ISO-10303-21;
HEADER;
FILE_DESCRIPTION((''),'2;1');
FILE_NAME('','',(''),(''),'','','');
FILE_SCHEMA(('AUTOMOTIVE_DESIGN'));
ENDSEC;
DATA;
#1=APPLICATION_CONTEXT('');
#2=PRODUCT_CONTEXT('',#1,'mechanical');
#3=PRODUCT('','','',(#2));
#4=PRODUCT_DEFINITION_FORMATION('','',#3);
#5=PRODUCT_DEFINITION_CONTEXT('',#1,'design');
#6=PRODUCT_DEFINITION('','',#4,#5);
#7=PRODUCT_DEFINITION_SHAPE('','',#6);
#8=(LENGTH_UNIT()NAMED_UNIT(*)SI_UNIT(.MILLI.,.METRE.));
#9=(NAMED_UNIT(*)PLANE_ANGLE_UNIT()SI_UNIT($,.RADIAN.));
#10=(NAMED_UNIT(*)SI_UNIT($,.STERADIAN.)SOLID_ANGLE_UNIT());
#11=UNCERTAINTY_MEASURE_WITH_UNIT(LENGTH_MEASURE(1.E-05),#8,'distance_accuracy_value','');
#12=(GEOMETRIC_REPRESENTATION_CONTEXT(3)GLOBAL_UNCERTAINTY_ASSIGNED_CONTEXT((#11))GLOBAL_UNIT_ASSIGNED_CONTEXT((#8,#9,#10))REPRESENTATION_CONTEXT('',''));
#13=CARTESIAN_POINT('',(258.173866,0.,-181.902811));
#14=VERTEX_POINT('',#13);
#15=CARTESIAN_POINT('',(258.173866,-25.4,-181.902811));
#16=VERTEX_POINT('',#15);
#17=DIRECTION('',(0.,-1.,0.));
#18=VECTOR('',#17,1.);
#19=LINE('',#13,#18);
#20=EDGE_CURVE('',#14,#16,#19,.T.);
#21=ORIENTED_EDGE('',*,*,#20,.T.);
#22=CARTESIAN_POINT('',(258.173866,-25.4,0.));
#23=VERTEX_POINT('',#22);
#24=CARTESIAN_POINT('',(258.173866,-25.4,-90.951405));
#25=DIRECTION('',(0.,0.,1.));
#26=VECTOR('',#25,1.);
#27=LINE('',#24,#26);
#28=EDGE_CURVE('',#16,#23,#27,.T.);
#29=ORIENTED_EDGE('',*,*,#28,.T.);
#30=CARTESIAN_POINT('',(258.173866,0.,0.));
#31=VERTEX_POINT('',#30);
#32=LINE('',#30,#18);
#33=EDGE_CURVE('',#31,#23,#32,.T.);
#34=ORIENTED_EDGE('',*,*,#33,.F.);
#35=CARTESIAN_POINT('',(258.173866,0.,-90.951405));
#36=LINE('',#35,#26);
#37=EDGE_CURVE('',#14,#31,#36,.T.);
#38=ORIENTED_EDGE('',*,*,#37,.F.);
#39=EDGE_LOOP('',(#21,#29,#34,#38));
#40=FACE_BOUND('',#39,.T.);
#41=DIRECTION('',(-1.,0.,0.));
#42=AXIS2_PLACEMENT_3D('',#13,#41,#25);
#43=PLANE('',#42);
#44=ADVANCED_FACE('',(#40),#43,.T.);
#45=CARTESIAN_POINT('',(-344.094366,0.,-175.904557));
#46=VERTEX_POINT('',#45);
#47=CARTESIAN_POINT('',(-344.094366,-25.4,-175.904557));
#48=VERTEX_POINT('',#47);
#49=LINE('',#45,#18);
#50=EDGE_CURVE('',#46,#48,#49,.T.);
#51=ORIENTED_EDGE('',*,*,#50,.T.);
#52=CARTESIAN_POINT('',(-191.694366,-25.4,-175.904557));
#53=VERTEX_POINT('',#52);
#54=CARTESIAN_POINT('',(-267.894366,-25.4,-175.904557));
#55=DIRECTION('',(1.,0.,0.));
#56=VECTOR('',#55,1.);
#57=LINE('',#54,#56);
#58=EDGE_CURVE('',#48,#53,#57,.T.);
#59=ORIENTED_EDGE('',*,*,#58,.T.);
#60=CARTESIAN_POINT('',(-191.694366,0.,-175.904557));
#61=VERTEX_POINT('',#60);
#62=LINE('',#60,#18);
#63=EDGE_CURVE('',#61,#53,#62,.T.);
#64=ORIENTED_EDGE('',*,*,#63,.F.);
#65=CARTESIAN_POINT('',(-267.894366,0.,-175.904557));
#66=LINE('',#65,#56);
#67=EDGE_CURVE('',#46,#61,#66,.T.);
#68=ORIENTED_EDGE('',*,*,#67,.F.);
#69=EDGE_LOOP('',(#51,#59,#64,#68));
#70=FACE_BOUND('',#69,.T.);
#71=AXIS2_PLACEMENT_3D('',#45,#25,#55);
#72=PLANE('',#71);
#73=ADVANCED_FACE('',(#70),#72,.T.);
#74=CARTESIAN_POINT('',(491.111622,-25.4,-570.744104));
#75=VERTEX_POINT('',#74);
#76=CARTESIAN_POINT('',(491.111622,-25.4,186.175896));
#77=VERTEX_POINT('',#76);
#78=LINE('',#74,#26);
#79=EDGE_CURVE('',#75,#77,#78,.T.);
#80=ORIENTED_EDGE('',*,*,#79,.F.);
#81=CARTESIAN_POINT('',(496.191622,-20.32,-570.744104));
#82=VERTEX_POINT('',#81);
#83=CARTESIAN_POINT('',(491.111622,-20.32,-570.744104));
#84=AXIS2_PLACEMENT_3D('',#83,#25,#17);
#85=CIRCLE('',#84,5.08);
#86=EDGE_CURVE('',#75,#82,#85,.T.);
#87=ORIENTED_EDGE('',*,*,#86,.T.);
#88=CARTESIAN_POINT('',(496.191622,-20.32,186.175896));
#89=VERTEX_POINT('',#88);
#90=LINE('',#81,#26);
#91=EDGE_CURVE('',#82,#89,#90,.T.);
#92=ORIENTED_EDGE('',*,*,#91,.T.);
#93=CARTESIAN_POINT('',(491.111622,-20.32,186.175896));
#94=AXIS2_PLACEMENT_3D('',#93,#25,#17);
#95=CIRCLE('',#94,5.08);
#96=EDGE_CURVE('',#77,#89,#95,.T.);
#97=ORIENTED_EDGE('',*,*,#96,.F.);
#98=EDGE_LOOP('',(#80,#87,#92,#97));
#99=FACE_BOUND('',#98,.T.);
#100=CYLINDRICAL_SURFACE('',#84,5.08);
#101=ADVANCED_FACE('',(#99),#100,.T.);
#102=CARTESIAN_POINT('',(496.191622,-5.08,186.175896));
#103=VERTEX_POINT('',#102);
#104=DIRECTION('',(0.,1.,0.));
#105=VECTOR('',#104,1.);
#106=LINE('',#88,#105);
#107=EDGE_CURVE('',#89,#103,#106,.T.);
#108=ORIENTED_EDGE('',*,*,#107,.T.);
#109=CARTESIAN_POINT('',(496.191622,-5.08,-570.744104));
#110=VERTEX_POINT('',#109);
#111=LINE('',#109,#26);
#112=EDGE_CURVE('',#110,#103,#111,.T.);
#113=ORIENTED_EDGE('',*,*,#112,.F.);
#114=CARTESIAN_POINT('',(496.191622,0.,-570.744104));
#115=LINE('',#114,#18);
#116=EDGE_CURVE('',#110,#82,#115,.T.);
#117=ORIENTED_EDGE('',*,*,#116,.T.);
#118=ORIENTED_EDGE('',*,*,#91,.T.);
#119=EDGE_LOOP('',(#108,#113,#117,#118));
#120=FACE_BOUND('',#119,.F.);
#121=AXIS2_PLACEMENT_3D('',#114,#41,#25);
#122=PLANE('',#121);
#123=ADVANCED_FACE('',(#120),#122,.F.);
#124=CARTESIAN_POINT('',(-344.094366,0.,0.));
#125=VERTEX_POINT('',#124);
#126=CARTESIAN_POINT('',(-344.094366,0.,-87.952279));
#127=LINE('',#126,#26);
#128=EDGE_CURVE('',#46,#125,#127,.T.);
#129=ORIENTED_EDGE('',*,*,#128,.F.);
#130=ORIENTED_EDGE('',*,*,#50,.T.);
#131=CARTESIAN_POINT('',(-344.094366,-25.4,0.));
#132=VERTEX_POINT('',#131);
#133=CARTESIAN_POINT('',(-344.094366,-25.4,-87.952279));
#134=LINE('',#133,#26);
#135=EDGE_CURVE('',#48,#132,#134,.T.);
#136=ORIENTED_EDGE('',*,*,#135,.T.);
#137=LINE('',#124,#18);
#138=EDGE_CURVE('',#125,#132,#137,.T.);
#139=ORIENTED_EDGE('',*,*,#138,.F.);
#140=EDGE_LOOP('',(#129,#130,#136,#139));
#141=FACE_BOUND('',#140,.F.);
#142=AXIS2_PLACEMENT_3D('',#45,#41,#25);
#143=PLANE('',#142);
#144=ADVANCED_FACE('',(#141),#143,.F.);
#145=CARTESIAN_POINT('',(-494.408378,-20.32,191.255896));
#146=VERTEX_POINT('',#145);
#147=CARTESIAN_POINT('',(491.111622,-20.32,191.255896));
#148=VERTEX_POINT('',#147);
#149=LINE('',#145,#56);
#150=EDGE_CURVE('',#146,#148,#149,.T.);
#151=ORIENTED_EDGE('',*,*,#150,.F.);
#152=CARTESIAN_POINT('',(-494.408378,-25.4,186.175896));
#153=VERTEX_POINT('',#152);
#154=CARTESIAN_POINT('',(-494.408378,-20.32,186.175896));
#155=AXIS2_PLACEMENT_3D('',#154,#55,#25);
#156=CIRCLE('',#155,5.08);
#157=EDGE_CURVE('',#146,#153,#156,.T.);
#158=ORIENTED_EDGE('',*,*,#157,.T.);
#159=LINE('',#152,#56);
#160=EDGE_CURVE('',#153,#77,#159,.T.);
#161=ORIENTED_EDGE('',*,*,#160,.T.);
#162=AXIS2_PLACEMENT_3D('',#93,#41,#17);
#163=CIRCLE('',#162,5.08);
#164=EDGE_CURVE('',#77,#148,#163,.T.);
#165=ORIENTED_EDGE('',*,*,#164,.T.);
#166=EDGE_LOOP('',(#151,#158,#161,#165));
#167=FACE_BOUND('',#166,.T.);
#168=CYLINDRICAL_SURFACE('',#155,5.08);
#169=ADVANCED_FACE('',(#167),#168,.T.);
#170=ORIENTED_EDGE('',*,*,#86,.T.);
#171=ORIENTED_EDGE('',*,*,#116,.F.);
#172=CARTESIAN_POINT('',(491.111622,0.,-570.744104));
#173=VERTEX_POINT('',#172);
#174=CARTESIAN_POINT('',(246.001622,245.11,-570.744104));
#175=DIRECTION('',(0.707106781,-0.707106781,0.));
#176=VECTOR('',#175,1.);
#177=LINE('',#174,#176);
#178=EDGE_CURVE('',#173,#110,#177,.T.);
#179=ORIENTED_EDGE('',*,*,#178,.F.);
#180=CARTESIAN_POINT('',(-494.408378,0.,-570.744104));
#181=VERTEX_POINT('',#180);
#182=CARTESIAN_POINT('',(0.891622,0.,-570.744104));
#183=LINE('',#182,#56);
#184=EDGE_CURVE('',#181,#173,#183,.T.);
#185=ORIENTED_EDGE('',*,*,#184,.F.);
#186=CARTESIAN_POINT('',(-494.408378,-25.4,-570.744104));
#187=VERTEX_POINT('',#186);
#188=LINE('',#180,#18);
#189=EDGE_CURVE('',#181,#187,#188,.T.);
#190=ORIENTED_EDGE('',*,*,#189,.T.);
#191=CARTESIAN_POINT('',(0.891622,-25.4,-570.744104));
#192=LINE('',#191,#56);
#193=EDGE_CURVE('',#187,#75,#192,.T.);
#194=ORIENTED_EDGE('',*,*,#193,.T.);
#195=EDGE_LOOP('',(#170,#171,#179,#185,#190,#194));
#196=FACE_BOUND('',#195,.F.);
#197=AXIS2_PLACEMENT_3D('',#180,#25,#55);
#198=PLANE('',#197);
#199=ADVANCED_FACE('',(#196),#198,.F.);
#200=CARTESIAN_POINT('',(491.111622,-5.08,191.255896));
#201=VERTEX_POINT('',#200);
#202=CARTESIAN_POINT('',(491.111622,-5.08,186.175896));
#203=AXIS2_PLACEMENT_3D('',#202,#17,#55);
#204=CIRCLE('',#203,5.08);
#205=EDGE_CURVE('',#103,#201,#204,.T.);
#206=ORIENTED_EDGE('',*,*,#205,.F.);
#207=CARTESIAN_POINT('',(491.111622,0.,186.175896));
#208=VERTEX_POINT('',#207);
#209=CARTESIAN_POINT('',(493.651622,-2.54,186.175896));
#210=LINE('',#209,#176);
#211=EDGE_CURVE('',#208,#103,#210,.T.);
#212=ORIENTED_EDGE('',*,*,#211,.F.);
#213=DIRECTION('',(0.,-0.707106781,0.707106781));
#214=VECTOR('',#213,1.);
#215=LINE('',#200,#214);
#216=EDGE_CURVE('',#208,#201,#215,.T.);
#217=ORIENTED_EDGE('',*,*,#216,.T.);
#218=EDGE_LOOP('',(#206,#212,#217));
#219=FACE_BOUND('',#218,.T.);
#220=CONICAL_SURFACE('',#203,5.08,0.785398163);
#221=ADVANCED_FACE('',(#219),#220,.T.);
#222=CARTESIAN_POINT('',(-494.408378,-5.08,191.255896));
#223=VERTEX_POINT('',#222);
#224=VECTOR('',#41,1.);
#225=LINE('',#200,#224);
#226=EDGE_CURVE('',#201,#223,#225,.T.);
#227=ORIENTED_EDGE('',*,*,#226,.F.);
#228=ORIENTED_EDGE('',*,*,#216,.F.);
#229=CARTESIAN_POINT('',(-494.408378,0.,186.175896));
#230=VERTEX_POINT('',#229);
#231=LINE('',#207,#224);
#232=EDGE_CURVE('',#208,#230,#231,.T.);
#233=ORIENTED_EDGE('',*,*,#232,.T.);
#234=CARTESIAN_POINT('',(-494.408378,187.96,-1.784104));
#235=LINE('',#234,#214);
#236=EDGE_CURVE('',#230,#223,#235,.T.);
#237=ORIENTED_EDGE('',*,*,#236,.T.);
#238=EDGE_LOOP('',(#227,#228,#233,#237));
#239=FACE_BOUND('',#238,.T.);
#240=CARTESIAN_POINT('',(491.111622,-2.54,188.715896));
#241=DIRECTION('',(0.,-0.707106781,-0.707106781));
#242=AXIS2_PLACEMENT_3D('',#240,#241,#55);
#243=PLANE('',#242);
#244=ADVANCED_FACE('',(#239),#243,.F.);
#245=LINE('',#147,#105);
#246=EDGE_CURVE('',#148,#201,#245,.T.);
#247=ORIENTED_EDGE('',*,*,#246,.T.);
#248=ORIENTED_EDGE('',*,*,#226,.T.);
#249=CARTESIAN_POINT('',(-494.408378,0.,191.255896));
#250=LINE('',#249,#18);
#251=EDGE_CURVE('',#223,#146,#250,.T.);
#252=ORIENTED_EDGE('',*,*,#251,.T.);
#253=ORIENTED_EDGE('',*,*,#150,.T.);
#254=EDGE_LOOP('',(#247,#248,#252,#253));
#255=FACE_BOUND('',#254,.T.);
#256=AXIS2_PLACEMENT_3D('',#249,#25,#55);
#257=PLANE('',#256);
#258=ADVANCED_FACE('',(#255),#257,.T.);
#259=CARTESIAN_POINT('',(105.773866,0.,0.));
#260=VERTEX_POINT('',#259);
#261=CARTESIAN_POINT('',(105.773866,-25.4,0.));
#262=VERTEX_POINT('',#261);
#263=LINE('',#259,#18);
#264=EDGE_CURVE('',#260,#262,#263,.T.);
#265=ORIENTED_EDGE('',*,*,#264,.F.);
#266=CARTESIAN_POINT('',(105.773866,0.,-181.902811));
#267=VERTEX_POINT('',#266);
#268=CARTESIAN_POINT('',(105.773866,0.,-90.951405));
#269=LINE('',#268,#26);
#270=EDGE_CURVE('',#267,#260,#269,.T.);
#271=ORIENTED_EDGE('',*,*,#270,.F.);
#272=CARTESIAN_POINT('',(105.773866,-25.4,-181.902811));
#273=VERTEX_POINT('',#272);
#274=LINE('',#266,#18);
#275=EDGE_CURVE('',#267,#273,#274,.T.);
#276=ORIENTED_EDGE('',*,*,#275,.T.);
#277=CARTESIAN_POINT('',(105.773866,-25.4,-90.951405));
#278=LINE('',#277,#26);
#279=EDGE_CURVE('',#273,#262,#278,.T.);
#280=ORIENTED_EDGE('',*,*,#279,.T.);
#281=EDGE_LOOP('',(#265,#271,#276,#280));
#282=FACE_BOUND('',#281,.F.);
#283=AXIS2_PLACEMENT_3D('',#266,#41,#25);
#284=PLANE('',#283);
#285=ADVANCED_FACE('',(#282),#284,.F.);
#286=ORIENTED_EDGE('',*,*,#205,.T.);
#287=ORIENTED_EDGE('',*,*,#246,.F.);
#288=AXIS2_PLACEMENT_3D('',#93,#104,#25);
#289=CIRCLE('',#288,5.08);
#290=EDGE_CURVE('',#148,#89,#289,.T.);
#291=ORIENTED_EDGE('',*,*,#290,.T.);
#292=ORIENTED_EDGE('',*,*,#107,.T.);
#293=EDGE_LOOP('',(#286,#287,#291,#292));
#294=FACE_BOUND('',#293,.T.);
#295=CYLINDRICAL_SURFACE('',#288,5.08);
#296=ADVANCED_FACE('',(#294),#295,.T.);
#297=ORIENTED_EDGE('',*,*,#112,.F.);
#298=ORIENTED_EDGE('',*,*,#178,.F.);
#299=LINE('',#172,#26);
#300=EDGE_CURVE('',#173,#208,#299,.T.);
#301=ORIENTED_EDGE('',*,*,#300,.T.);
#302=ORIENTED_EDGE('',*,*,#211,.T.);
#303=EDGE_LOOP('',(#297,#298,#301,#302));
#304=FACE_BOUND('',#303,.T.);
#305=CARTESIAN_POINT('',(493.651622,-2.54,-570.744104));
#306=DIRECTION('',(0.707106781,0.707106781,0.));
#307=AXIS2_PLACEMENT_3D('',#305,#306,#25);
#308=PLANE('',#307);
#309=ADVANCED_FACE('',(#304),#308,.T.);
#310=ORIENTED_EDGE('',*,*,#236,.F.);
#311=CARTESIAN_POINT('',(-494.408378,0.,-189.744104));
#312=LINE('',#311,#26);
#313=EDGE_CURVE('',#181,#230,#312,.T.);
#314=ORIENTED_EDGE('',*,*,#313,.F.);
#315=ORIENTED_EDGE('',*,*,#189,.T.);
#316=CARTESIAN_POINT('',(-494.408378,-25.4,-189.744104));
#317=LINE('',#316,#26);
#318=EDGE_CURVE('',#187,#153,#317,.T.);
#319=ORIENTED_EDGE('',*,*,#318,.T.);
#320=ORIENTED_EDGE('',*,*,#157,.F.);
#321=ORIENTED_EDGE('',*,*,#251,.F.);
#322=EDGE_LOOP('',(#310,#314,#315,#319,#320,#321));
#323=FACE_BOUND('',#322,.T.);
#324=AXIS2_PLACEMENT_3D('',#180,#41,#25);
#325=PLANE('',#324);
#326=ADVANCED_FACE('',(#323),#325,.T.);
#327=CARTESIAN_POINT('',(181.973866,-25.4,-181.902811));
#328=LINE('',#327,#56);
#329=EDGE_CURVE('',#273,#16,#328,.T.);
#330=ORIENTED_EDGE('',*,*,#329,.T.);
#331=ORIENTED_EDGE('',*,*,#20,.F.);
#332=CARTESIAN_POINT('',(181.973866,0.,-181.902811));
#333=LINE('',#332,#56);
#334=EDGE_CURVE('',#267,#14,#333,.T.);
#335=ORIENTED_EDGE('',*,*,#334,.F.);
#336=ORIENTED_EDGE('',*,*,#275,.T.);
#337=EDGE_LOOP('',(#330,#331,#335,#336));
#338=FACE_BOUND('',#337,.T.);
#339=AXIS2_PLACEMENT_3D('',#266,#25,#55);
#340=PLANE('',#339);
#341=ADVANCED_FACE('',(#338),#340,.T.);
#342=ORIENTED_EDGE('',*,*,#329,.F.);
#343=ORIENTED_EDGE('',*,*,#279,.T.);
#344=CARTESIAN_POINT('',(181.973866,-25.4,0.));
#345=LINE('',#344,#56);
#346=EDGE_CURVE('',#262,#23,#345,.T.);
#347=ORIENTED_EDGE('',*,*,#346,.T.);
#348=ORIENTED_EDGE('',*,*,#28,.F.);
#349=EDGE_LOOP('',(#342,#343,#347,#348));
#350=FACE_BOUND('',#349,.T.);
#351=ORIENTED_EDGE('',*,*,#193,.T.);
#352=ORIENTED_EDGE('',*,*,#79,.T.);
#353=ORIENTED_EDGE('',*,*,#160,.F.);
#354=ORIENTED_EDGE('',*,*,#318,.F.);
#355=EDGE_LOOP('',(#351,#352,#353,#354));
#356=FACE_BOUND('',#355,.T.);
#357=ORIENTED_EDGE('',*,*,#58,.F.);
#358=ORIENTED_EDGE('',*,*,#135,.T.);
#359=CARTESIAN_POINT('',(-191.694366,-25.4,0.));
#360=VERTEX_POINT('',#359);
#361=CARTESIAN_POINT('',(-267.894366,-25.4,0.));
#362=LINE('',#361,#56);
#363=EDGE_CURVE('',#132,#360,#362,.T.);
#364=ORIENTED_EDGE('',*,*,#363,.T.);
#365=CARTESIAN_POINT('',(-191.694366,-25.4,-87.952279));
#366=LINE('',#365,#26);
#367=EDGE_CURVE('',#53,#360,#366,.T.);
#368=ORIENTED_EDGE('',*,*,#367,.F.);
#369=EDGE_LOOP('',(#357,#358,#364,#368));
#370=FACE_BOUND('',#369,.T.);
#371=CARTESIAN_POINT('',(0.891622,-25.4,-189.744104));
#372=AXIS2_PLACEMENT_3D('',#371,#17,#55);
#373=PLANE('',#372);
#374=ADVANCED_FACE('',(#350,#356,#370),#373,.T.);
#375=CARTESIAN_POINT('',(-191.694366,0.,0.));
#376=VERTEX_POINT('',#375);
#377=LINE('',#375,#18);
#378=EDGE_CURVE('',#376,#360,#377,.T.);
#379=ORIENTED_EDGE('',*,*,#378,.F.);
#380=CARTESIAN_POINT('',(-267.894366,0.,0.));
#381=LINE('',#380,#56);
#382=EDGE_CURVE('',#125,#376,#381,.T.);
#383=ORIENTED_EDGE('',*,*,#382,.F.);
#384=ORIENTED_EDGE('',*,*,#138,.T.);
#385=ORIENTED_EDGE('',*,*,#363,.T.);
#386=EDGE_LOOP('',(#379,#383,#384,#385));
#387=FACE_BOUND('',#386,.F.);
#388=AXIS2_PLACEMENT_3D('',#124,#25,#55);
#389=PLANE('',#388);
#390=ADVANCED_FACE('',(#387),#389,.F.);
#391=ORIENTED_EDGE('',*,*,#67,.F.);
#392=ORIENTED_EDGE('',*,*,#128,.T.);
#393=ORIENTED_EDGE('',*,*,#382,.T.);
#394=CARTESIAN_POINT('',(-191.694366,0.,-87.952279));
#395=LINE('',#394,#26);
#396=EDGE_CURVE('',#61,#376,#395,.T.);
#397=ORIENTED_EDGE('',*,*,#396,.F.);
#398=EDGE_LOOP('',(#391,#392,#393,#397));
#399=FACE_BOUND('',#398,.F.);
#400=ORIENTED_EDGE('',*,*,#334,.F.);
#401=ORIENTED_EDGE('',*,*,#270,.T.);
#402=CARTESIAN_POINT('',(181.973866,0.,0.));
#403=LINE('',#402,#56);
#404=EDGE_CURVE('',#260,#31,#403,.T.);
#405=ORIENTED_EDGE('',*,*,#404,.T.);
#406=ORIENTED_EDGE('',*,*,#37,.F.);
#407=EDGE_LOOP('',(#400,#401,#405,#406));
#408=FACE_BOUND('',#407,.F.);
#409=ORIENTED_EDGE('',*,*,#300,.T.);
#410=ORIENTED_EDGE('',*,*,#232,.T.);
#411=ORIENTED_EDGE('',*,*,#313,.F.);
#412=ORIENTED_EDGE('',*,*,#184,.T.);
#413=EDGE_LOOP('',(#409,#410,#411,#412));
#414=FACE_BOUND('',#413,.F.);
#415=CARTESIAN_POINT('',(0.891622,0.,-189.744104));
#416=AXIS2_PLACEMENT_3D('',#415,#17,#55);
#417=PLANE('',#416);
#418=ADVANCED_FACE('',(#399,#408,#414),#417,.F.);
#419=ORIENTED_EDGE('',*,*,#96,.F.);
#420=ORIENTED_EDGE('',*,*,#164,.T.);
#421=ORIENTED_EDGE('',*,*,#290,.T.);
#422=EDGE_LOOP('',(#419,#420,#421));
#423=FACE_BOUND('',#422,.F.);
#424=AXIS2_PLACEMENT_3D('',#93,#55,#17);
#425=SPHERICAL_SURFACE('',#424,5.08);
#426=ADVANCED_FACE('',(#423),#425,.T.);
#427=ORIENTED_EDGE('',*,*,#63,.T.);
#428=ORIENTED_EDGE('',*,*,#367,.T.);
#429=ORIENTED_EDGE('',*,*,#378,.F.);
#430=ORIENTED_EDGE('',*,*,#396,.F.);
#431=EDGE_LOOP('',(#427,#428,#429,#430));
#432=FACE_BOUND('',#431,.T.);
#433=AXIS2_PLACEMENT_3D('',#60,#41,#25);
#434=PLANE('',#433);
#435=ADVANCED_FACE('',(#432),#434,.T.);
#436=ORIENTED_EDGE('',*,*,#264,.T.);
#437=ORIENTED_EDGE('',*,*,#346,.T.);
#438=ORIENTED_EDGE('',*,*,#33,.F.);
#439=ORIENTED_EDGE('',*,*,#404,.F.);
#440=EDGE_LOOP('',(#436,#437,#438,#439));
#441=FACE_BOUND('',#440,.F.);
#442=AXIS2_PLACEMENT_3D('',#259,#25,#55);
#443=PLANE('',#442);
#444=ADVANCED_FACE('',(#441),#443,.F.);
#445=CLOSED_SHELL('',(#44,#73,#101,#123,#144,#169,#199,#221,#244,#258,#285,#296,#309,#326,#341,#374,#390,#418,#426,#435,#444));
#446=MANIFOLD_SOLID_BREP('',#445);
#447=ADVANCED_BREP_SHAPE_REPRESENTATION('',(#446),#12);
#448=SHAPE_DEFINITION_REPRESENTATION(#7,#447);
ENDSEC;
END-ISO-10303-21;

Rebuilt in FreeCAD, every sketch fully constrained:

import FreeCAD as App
import Part
import Sketcher
from FreeCAD import Vector
Q = App.Units.Quantity


def edges_at(feature, points):
    """Names of the edges that pass closest to the given points."""
    edges = feature.Shape.Edges
    near = lambda p: min(range(len(edges)), key=lambda i: edges[i].distToShape(Part.Vertex(*p))[0])
    return sorted({f"Edge{near(p) + 1}" for p in points})

doc = App.newDocument("Part")
body = doc.addObject("PartDesign::Body", "Body")

# Sketch on XZ plane
sketch1 = body.newObject("Sketcher::SketchObject", "Sketch")
sketch1.AttachmentSupport = (doc.getObject("XZ_Plane"), [""])
sketch1.MapMode = "FlatFace"
sketch1.addGeometry([
    Part.LineSegment(Vector(-494, 191, 0), Vector(-494, -571, 0)),  # 0
    Part.LineSegment(Vector(-494, -571, 0), Vector(496, -571, 0)),  # 1
    Part.LineSegment(Vector(496, -571, 0), Vector(496, 191, 0)),  # 2
    Part.LineSegment(Vector(496, 191, 0), Vector(-494, 191, 0)),  # 3
    Part.LineSegment(Vector(258, -182, 0), Vector(106, -182, 0)),  # 4
    Part.LineSegment(Vector(106, -182, 0), Vector(106, 0, 0)),  # 5
    Part.LineSegment(Vector(106, 0, 0), Vector(258, 0, 0)),  # 6
    Part.LineSegment(Vector(258, 0, 0), Vector(258, -182, 0)),  # 7
    Part.LineSegment(Vector(-192, -176, 0), Vector(-344, -176, 0)),  # 8
    Part.LineSegment(Vector(-344, -176, 0), Vector(-344, 0, 0)),  # 9
    Part.LineSegment(Vector(-344, 0, 0), Vector(-192, 0, 0)),  # 10
    Part.LineSegment(Vector(-192, 0, 0), Vector(-192, -176, 0)),  # 11
], False)
sketch1.addConstraint([
    Sketcher.Constraint("Coincident", 0, 2, 1, 1),
    Sketcher.Constraint("Coincident", 1, 2, 2, 1),
    Sketcher.Constraint("Coincident", 2, 2, 3, 1),
    Sketcher.Constraint("Coincident", 3, 2, 0, 1),
    Sketcher.Constraint("Coincident", 4, 2, 5, 1),
    Sketcher.Constraint("Coincident", 5, 2, 6, 1),
    Sketcher.Constraint("Coincident", 6, 2, 7, 1),
    Sketcher.Constraint("Coincident", 7, 2, 4, 1),
    Sketcher.Constraint("Coincident", 8, 2, 9, 1),
    Sketcher.Constraint("Coincident", 9, 2, 10, 1),
    Sketcher.Constraint("Coincident", 10, 2, 11, 1),
    Sketcher.Constraint("Coincident", 11, 2, 8, 1),
    Sketcher.Constraint("Vertical", 0),
    Sketcher.Constraint("Horizontal", 1),
    Sketcher.Constraint("Vertical", 2),
    Sketcher.Constraint("Horizontal", 3),
    Sketcher.Constraint("Horizontal", 4),
    Sketcher.Constraint("Vertical", 5),
    Sketcher.Constraint("Horizontal", 6),
    Sketcher.Constraint("Vertical", 7),
    Sketcher.Constraint("Horizontal", 8),
    Sketcher.Constraint("Vertical", 9),
    Sketcher.Constraint("Horizontal", 10),
    Sketcher.Constraint("Vertical", 11),
    Sketcher.Constraint("PointOnObject", 5, 2, -1),
    Sketcher.Constraint("PointOnObject", 9, 2, -1),
    Sketcher.Constraint("Equal", 6, 8),
    Sketcher.Constraint("DistanceX", 1, 1, 1, 2, Q("39 in")),
    Sketcher.Constraint("DistanceX", 4, 2, 4, 1, Q("6 in")),
    Sketcher.Constraint("DistanceY", 0, 2, 0, 1, Q("30 in")),
    Sketcher.Constraint("DistanceY", 5, 1, 5, 2, Q("181.902811 mm")),
    Sketcher.Constraint("DistanceY", 9, 1, 9, 2, Q("175.904557 mm")),
    Sketcher.Constraint("DistanceX", 0, 2, -1, 1, Q("494.408378 mm")),
    Sketcher.Constraint("DistanceY", 0, 2, -1, 1, Q("570.744104 mm")),
    Sketcher.Constraint("DistanceX", -1, 1, 4, 2, Q("105.773866 mm")),
    Sketcher.Constraint("DistanceX", 8, 2, -1, 1, Q("344.094366 mm")),
])
pad1 = body.newObject("PartDesign::Pad", "Pad")
pad1.Profile = sketch1
pad1.Length = Q("1 in")
doc.recompute()

fillet = body.newObject("PartDesign::Fillet", "Fillet")
fillet.Base = (pad1, edges_at(pad1, [(0.892, -25.4, 191.256)]))
fillet.Radius = Q("0.2 in")
doc.recompute()

fillet2 = body.newObject("PartDesign::Fillet", "Fillet001")
fillet2.Base = (fillet, edges_at(fillet, [(0.892, -25.4, 186.176), (496.192, -25.4, -192.284)]))
fillet2.Radius = Q("0.2 in")
doc.recompute()

chamfer = body.newObject("PartDesign::Chamfer", "Chamfer")
chamfer.Base = (fillet2, edges_at(fillet2, [(496.192, 0, -192.284)]))
chamfer.Size = Q("0.2 in")

doc.recompute()
